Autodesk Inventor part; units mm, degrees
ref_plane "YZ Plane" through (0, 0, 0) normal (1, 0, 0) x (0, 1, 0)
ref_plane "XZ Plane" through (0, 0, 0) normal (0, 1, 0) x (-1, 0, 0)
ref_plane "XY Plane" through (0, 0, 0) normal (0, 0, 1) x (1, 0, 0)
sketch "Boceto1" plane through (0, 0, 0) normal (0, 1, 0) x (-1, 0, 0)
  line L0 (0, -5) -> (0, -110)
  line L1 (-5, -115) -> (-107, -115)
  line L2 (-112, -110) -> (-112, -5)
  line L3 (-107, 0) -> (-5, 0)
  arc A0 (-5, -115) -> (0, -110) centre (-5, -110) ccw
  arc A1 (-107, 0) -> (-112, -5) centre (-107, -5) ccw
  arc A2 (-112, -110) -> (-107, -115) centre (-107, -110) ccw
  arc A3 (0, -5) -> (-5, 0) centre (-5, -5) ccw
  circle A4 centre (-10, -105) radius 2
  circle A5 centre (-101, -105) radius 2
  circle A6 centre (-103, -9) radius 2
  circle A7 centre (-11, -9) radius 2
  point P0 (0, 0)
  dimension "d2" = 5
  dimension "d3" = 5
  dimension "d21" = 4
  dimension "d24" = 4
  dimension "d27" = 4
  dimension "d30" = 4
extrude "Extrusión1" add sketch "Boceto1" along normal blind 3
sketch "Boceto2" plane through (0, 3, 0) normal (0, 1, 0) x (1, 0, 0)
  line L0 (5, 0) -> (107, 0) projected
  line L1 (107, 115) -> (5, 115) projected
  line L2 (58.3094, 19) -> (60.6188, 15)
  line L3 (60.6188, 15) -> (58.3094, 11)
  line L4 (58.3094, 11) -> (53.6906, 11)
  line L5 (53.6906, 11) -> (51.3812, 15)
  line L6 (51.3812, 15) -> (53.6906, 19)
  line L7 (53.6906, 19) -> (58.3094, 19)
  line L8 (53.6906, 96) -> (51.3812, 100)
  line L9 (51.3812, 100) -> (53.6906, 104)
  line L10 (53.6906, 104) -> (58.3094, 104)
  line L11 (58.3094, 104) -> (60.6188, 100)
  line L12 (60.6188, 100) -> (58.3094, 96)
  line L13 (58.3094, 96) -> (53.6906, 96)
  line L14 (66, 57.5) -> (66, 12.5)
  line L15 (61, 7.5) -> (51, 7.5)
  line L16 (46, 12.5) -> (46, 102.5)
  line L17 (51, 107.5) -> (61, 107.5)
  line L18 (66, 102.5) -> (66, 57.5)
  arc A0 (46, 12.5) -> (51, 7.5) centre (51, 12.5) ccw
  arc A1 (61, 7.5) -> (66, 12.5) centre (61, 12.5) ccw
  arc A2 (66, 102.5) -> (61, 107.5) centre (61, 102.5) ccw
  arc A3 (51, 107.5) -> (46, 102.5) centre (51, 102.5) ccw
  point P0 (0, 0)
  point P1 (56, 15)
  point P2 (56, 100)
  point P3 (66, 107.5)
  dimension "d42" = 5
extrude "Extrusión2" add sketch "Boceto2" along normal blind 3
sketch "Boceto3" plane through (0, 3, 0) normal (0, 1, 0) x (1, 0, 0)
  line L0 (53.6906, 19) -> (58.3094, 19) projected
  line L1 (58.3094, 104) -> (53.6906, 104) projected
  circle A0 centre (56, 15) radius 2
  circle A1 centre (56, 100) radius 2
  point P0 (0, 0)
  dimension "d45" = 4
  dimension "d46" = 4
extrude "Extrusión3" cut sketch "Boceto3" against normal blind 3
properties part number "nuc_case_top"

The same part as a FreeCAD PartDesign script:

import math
import FreeCAD as App
import Part
import Sketcher
Q = App.Units.Quantity


def add_polygon(sketch, points):
    """Adds a closed chain of lines whose ends are joined by coincident constraints."""
    first, n = sketch.GeometryCount, len(points)
    for a, b in zip(points, points[1:] + points[:1]):
        sketch.addGeometry(Part.LineSegment(App.Vector(*a, 0), App.Vector(*b, 0)), False)
    for i in range(n):
        sketch.addConstraint(Sketcher.Constraint("Coincident", first + i, 2, first + (i + 1) % n, 1))

doc = App.newDocument("Part")
body = doc.addObject("PartDesign::Body", "Body")

# Sketch on XZ plane
sketch1 = doc.addObject("Sketcher::SketchObject", "Sketch")
body.addObject(sketch1)
sketch1.AttachmentSupport = (doc.XZ_Plane, [""])
sketch1.MapMode = "FlatFace"
sketch1.addGeometry([
    Part.LineSegment(App.Vector(0, -110, 0), App.Vector(0, -5, 0)),  # 0
    Part.ArcOfCircle(Part.Circle(App.Vector(5, -5, 0), App.Vector(0, 0, 1), 5), math.radians(90), math.radians(180)),  # 1
    Part.LineSegment(App.Vector(5, 0, 0), App.Vector(107, 0, 0)),  # 2
    Part.ArcOfCircle(Part.Circle(App.Vector(107, -5, 0), App.Vector(0, 0, 1), 5), math.radians(0), math.radians(90)),  # 3
    Part.LineSegment(App.Vector(112, -5, 0), App.Vector(112, -110, 0)),  # 4
    Part.ArcOfCircle(Part.Circle(App.Vector(107, -110, 0), App.Vector(0, 0, 1), 5), math.radians(-90), math.radians(0)),  # 5
    Part.LineSegment(App.Vector(107, -115, 0), App.Vector(5, -115, 0)),  # 6
    Part.ArcOfCircle(Part.Circle(App.Vector(5, -110, 0), App.Vector(0, 0, 1), 5), math.radians(180), math.radians(270)),  # 7
    Part.Circle(App.Vector(101, -105, 0), App.Vector(0, 0, 1), 2),  # 8
    Part.Circle(App.Vector(10, -105, 0), App.Vector(0, 0, 1), 2),  # 9
    Part.Circle(App.Vector(103, -9, 0), App.Vector(0, 0, 1), 2),  # 10
    Part.Circle(App.Vector(11, -9, 0), App.Vector(0, 0, 1), 2),  # 11
], False)
sketch1.addConstraint([
    Sketcher.Constraint("Tangent", 0, 2, 1, 2),
    Sketcher.Constraint("Tangent", 1, 1, 2, 1),
    Sketcher.Constraint("Tangent", 2, 2, 3, 2),
    Sketcher.Constraint("Tangent", 3, 1, 4, 1),
    Sketcher.Constraint("Tangent", 4, 2, 5, 2),
    Sketcher.Constraint("Tangent", 5, 1, 6, 1),
    Sketcher.Constraint("Tangent", 6, 2, 7, 2),
    Sketcher.Constraint("Tangent", 7, 1, 0, 1),
    Sketcher.Constraint("Vertical", 0),
    Sketcher.Constraint("Horizontal", 2),
    Sketcher.Constraint("Vertical", 4),
    Sketcher.Constraint("Horizontal", 6),
    Sketcher.Constraint("Equal", 1, 3),
    Sketcher.Constraint("Equal", 3, 5),
    Sketcher.Constraint("Equal", 5, 7),
    Sketcher.Constraint("Equal", 8, 9),
    Sketcher.Constraint("Equal", 9, 10),
    Sketcher.Constraint("Equal", 10, 11),
    Sketcher.Constraint("PointOnObject", 0, 2, -2),
    Sketcher.Constraint("PointOnObject", 1, 1, -1),
    Sketcher.Constraint("Horizontal", 8, 3, 9, 3),
    Sketcher.Constraint("Horizontal", 10, 3, 11, 3),
    Sketcher.Constraint("Diameter", 8, Q("4 mm")),
    Sketcher.Constraint("Radius", 1, Q("5 mm")),
    Sketcher.Constraint("DistanceY", 5, 3, 8, 3, Q("5 mm")),
    Sketcher.Constraint("DistanceX", 7, 3, 9, 3, Q("5 mm")),
    Sketcher.Constraint("DistanceX", 10, 3, 3, 3, Q("4 mm")),
    Sketcher.Constraint("DistanceY", 10, 3, 3, 3, Q("4 mm")),
    Sketcher.Constraint("DistanceX", 2, 1, 2, 2, Q("102 mm")),
    Sketcher.Constraint("DistanceY", 0, 1, 0, 2, Q("105 mm")),
    Sketcher.Constraint("DistanceX", -1, 1, 8, 3, Q("101 mm")),
    Sketcher.Constraint("DistanceX", -1, 1, 11, 3, Q("11 mm")),
])
pad1 = doc.addObject("PartDesign::Pad", "Pad")
body.addObject(pad1)
pad1.Profile = sketch1
pad1.Length = 3
pad1.Reversed = True

# Sketch on XZ plane
sketch2 = doc.addObject("Sketcher::SketchObject", "Sketch001")
body.addObject(sketch2)
sketch2.AttachmentSupport = (doc.XZ_Plane, [""])
sketch2.MapMode = "FlatFace"
sketch2.AttachmentOffset = App.Placement(App.Vector(0, 0, -3), App.Rotation())
sketch2.addGeometry(Part.LineSegment(App.Vector(66, -12.5, 0), App.Vector(66, -102.5, 0)), False)  # 0
sketch2.addGeometry(Part.ArcOfCircle(Part.Circle(App.Vector(61, -102.5, 0), App.Vector(0, 0, 1), 5), math.radians(-90), math.radians(0)), False)  # 1
sketch2.addGeometry(Part.LineSegment(App.Vector(61, -107.5, 0), App.Vector(51, -107.5, 0)), False)  # 2
sketch2.addGeometry(Part.ArcOfCircle(Part.Circle(App.Vector(51, -102.5, 0), App.Vector(0, 0, 1), 5), math.radians(180), math.radians(270)), False)  # 3
sketch2.addGeometry(Part.LineSegment(App.Vector(46, -102.5, 0), App.Vector(46, -12.5, 0)), False)  # 4
sketch2.addGeometry(Part.ArcOfCircle(Part.Circle(App.Vector(51, -12.5, 0), App.Vector(0, 0, 1), 5), math.radians(90), math.radians(180)), False)  # 5
sketch2.addGeometry(Part.LineSegment(App.Vector(51, -7.5, 0), App.Vector(61, -7.5, 0)), False)  # 6
sketch2.addGeometry(Part.ArcOfCircle(Part.Circle(App.Vector(61, -12.5, 0), App.Vector(0, 0, 1), 5), math.radians(0), math.radians(90)), False)  # 7
add_polygon(sketch2, [(53.6906, -19), (58.3094, -19), (60.6188, -15), (58.3094, -11), (53.6906, -11), (51.3812, -15)])  # lines 8-13
add_polygon(sketch2, [(58.3094, -96), (53.6906, -96), (51.3812, -100), (53.6906, -104), (58.3094, -104), (60.6188, -100)])  # lines 14-19
sketch2.addConstraint([
    Sketcher.Constraint("Tangent", 0, 2, 1, 2),
    Sketcher.Constraint("Tangent", 1, 1, 2, 1),
    Sketcher.Constraint("Tangent", 2, 2, 3, 2),
    Sketcher.Constraint("Tangent", 3, 1, 4, 1),
    Sketcher.Constraint("Tangent", 4, 2, 5, 2),
    Sketcher.Constraint("Tangent", 5, 1, 6, 1),
    Sketcher.Constraint("Tangent", 6, 2, 7, 2),
    Sketcher.Constraint("Tangent", 7, 1, 0, 1),
    Sketcher.Constraint("Vertical", 0),
    Sketcher.Constraint("Horizontal", 2),
    Sketcher.Constraint("Vertical", 4),
    Sketcher.Constraint("Horizontal", 6),
    Sketcher.Constraint("Horizontal", 8),
    Sketcher.Constraint("Horizontal", 11),
    Sketcher.Constraint("Horizontal", 14),
    Sketcher.Constraint("Horizontal", 17),
    Sketcher.Constraint("Equal", 1, 3),
    Sketcher.Constraint("Equal", 3, 5),
    Sketcher.Constraint("Equal", 5, 7),
    Sketcher.Constraint("Parallel", 9, 12),
    Sketcher.Constraint("Parallel", 10, 13),
    Sketcher.Constraint("Parallel", 12, 15),
    Sketcher.Constraint("Parallel", 13, 16),
    Sketcher.Constraint("Parallel", 15, 18),
    Sketcher.Constraint("Parallel", 16, 19),
    Sketcher.Constraint("Horizontal", 9, 2, 12, 2),
    Sketcher.Constraint("Horizontal", 15, 2, 18, 2),
    Sketcher.Constraint("Vertical", 8, 2, 10, 2),
    Sketcher.Constraint("Vertical", 11, 2, 13, 2),
    Sketcher.Constraint("Vertical", 13, 2, 14, 2),
    Sketcher.Constraint("Vertical", 12, 2, 15, 2),
    Sketcher.Constraint("Vertical", 14, 2, 16, 2),
    Sketcher.Constraint("Vertical", 10, 2, 17, 2),
    Sketcher.Constraint("Radius", 1, Q("5 mm")),
    Sketcher.Constraint("DistanceX", 2, 2, 2, 1, Q("10 mm")),
    Sketcher.Constraint("DistanceY", 0, 2, 0, 1, Q("90 mm")),
    Sketcher.Constraint("Angle", 9, Q("60 deg")),
    Sketcher.Constraint("DistanceX", -1, 1, 1, 3, Q("61 mm")),
    Sketcher.Constraint("DistanceY", 8, 2, -1, 1, Q("19 mm")),
    Sketcher.Constraint("DistanceY", 9, 2, -1, 1, Q("15 mm")),
    Sketcher.Constraint("DistanceY", 14, 2, -1, 1, Q("96 mm")),
    Sketcher.Constraint("DistanceY", 1, 3, -1, 1, Q("102.5 mm")),
    Sketcher.Constraint("DistanceX", 8, 1, 8, 2, Q("4.6188 mm")),
    Sketcher.Constraint("DistanceX", -1, 1, 8, 2, Q("58.3094 mm")),
])
pad2 = doc.addObject("PartDesign::Pad", "Pad001")
body.addObject(pad2)
pad2.Profile = sketch2
pad2.Length = 3
pad2.Reversed = True

# Sketch on XZ plane
sketch3 = doc.addObject("Sketcher::SketchObject", "Sketch002")
body.addObject(sketch3)
sketch3.AttachmentSupport = (doc.XZ_Plane, [""])
sketch3.MapMode = "FlatFace"
sketch3.AttachmentOffset = App.Placement(App.Vector(0, 0, -3), App.Rotation())
sketch3.addGeometry([
    Part.Circle(App.Vector(56, -15, 0), App.Vector(0, 0, 1), 2),
    Part.Circle(App.Vector(56, -100, 0), App.Vector(0, 0, 1), 2),
], False)
sketch3.addConstraint([
    Sketcher.Constraint("Equal", 0, 1),
    Sketcher.Constraint("Vertical", 0, 3, 1, 3),
    Sketcher.Constraint("Diameter", 0, Q("4 mm")),
    Sketcher.Constraint("DistanceX", -1, 1, 0, 3, Q("56 mm")),
    Sketcher.Constraint("DistanceY", 0, 3, -1, 1, Q("15 mm")),
    Sketcher.Constraint("DistanceY", 1, 3, -1, 1, Q("100 mm")),
])
pocket1 = doc.addObject("PartDesign::Pocket", "Pocket")
body.addObject(pocket1)
pocket1.Profile = sketch3
pocket1.Length = 3
pocket1.Reversed = True

doc.recompute()
